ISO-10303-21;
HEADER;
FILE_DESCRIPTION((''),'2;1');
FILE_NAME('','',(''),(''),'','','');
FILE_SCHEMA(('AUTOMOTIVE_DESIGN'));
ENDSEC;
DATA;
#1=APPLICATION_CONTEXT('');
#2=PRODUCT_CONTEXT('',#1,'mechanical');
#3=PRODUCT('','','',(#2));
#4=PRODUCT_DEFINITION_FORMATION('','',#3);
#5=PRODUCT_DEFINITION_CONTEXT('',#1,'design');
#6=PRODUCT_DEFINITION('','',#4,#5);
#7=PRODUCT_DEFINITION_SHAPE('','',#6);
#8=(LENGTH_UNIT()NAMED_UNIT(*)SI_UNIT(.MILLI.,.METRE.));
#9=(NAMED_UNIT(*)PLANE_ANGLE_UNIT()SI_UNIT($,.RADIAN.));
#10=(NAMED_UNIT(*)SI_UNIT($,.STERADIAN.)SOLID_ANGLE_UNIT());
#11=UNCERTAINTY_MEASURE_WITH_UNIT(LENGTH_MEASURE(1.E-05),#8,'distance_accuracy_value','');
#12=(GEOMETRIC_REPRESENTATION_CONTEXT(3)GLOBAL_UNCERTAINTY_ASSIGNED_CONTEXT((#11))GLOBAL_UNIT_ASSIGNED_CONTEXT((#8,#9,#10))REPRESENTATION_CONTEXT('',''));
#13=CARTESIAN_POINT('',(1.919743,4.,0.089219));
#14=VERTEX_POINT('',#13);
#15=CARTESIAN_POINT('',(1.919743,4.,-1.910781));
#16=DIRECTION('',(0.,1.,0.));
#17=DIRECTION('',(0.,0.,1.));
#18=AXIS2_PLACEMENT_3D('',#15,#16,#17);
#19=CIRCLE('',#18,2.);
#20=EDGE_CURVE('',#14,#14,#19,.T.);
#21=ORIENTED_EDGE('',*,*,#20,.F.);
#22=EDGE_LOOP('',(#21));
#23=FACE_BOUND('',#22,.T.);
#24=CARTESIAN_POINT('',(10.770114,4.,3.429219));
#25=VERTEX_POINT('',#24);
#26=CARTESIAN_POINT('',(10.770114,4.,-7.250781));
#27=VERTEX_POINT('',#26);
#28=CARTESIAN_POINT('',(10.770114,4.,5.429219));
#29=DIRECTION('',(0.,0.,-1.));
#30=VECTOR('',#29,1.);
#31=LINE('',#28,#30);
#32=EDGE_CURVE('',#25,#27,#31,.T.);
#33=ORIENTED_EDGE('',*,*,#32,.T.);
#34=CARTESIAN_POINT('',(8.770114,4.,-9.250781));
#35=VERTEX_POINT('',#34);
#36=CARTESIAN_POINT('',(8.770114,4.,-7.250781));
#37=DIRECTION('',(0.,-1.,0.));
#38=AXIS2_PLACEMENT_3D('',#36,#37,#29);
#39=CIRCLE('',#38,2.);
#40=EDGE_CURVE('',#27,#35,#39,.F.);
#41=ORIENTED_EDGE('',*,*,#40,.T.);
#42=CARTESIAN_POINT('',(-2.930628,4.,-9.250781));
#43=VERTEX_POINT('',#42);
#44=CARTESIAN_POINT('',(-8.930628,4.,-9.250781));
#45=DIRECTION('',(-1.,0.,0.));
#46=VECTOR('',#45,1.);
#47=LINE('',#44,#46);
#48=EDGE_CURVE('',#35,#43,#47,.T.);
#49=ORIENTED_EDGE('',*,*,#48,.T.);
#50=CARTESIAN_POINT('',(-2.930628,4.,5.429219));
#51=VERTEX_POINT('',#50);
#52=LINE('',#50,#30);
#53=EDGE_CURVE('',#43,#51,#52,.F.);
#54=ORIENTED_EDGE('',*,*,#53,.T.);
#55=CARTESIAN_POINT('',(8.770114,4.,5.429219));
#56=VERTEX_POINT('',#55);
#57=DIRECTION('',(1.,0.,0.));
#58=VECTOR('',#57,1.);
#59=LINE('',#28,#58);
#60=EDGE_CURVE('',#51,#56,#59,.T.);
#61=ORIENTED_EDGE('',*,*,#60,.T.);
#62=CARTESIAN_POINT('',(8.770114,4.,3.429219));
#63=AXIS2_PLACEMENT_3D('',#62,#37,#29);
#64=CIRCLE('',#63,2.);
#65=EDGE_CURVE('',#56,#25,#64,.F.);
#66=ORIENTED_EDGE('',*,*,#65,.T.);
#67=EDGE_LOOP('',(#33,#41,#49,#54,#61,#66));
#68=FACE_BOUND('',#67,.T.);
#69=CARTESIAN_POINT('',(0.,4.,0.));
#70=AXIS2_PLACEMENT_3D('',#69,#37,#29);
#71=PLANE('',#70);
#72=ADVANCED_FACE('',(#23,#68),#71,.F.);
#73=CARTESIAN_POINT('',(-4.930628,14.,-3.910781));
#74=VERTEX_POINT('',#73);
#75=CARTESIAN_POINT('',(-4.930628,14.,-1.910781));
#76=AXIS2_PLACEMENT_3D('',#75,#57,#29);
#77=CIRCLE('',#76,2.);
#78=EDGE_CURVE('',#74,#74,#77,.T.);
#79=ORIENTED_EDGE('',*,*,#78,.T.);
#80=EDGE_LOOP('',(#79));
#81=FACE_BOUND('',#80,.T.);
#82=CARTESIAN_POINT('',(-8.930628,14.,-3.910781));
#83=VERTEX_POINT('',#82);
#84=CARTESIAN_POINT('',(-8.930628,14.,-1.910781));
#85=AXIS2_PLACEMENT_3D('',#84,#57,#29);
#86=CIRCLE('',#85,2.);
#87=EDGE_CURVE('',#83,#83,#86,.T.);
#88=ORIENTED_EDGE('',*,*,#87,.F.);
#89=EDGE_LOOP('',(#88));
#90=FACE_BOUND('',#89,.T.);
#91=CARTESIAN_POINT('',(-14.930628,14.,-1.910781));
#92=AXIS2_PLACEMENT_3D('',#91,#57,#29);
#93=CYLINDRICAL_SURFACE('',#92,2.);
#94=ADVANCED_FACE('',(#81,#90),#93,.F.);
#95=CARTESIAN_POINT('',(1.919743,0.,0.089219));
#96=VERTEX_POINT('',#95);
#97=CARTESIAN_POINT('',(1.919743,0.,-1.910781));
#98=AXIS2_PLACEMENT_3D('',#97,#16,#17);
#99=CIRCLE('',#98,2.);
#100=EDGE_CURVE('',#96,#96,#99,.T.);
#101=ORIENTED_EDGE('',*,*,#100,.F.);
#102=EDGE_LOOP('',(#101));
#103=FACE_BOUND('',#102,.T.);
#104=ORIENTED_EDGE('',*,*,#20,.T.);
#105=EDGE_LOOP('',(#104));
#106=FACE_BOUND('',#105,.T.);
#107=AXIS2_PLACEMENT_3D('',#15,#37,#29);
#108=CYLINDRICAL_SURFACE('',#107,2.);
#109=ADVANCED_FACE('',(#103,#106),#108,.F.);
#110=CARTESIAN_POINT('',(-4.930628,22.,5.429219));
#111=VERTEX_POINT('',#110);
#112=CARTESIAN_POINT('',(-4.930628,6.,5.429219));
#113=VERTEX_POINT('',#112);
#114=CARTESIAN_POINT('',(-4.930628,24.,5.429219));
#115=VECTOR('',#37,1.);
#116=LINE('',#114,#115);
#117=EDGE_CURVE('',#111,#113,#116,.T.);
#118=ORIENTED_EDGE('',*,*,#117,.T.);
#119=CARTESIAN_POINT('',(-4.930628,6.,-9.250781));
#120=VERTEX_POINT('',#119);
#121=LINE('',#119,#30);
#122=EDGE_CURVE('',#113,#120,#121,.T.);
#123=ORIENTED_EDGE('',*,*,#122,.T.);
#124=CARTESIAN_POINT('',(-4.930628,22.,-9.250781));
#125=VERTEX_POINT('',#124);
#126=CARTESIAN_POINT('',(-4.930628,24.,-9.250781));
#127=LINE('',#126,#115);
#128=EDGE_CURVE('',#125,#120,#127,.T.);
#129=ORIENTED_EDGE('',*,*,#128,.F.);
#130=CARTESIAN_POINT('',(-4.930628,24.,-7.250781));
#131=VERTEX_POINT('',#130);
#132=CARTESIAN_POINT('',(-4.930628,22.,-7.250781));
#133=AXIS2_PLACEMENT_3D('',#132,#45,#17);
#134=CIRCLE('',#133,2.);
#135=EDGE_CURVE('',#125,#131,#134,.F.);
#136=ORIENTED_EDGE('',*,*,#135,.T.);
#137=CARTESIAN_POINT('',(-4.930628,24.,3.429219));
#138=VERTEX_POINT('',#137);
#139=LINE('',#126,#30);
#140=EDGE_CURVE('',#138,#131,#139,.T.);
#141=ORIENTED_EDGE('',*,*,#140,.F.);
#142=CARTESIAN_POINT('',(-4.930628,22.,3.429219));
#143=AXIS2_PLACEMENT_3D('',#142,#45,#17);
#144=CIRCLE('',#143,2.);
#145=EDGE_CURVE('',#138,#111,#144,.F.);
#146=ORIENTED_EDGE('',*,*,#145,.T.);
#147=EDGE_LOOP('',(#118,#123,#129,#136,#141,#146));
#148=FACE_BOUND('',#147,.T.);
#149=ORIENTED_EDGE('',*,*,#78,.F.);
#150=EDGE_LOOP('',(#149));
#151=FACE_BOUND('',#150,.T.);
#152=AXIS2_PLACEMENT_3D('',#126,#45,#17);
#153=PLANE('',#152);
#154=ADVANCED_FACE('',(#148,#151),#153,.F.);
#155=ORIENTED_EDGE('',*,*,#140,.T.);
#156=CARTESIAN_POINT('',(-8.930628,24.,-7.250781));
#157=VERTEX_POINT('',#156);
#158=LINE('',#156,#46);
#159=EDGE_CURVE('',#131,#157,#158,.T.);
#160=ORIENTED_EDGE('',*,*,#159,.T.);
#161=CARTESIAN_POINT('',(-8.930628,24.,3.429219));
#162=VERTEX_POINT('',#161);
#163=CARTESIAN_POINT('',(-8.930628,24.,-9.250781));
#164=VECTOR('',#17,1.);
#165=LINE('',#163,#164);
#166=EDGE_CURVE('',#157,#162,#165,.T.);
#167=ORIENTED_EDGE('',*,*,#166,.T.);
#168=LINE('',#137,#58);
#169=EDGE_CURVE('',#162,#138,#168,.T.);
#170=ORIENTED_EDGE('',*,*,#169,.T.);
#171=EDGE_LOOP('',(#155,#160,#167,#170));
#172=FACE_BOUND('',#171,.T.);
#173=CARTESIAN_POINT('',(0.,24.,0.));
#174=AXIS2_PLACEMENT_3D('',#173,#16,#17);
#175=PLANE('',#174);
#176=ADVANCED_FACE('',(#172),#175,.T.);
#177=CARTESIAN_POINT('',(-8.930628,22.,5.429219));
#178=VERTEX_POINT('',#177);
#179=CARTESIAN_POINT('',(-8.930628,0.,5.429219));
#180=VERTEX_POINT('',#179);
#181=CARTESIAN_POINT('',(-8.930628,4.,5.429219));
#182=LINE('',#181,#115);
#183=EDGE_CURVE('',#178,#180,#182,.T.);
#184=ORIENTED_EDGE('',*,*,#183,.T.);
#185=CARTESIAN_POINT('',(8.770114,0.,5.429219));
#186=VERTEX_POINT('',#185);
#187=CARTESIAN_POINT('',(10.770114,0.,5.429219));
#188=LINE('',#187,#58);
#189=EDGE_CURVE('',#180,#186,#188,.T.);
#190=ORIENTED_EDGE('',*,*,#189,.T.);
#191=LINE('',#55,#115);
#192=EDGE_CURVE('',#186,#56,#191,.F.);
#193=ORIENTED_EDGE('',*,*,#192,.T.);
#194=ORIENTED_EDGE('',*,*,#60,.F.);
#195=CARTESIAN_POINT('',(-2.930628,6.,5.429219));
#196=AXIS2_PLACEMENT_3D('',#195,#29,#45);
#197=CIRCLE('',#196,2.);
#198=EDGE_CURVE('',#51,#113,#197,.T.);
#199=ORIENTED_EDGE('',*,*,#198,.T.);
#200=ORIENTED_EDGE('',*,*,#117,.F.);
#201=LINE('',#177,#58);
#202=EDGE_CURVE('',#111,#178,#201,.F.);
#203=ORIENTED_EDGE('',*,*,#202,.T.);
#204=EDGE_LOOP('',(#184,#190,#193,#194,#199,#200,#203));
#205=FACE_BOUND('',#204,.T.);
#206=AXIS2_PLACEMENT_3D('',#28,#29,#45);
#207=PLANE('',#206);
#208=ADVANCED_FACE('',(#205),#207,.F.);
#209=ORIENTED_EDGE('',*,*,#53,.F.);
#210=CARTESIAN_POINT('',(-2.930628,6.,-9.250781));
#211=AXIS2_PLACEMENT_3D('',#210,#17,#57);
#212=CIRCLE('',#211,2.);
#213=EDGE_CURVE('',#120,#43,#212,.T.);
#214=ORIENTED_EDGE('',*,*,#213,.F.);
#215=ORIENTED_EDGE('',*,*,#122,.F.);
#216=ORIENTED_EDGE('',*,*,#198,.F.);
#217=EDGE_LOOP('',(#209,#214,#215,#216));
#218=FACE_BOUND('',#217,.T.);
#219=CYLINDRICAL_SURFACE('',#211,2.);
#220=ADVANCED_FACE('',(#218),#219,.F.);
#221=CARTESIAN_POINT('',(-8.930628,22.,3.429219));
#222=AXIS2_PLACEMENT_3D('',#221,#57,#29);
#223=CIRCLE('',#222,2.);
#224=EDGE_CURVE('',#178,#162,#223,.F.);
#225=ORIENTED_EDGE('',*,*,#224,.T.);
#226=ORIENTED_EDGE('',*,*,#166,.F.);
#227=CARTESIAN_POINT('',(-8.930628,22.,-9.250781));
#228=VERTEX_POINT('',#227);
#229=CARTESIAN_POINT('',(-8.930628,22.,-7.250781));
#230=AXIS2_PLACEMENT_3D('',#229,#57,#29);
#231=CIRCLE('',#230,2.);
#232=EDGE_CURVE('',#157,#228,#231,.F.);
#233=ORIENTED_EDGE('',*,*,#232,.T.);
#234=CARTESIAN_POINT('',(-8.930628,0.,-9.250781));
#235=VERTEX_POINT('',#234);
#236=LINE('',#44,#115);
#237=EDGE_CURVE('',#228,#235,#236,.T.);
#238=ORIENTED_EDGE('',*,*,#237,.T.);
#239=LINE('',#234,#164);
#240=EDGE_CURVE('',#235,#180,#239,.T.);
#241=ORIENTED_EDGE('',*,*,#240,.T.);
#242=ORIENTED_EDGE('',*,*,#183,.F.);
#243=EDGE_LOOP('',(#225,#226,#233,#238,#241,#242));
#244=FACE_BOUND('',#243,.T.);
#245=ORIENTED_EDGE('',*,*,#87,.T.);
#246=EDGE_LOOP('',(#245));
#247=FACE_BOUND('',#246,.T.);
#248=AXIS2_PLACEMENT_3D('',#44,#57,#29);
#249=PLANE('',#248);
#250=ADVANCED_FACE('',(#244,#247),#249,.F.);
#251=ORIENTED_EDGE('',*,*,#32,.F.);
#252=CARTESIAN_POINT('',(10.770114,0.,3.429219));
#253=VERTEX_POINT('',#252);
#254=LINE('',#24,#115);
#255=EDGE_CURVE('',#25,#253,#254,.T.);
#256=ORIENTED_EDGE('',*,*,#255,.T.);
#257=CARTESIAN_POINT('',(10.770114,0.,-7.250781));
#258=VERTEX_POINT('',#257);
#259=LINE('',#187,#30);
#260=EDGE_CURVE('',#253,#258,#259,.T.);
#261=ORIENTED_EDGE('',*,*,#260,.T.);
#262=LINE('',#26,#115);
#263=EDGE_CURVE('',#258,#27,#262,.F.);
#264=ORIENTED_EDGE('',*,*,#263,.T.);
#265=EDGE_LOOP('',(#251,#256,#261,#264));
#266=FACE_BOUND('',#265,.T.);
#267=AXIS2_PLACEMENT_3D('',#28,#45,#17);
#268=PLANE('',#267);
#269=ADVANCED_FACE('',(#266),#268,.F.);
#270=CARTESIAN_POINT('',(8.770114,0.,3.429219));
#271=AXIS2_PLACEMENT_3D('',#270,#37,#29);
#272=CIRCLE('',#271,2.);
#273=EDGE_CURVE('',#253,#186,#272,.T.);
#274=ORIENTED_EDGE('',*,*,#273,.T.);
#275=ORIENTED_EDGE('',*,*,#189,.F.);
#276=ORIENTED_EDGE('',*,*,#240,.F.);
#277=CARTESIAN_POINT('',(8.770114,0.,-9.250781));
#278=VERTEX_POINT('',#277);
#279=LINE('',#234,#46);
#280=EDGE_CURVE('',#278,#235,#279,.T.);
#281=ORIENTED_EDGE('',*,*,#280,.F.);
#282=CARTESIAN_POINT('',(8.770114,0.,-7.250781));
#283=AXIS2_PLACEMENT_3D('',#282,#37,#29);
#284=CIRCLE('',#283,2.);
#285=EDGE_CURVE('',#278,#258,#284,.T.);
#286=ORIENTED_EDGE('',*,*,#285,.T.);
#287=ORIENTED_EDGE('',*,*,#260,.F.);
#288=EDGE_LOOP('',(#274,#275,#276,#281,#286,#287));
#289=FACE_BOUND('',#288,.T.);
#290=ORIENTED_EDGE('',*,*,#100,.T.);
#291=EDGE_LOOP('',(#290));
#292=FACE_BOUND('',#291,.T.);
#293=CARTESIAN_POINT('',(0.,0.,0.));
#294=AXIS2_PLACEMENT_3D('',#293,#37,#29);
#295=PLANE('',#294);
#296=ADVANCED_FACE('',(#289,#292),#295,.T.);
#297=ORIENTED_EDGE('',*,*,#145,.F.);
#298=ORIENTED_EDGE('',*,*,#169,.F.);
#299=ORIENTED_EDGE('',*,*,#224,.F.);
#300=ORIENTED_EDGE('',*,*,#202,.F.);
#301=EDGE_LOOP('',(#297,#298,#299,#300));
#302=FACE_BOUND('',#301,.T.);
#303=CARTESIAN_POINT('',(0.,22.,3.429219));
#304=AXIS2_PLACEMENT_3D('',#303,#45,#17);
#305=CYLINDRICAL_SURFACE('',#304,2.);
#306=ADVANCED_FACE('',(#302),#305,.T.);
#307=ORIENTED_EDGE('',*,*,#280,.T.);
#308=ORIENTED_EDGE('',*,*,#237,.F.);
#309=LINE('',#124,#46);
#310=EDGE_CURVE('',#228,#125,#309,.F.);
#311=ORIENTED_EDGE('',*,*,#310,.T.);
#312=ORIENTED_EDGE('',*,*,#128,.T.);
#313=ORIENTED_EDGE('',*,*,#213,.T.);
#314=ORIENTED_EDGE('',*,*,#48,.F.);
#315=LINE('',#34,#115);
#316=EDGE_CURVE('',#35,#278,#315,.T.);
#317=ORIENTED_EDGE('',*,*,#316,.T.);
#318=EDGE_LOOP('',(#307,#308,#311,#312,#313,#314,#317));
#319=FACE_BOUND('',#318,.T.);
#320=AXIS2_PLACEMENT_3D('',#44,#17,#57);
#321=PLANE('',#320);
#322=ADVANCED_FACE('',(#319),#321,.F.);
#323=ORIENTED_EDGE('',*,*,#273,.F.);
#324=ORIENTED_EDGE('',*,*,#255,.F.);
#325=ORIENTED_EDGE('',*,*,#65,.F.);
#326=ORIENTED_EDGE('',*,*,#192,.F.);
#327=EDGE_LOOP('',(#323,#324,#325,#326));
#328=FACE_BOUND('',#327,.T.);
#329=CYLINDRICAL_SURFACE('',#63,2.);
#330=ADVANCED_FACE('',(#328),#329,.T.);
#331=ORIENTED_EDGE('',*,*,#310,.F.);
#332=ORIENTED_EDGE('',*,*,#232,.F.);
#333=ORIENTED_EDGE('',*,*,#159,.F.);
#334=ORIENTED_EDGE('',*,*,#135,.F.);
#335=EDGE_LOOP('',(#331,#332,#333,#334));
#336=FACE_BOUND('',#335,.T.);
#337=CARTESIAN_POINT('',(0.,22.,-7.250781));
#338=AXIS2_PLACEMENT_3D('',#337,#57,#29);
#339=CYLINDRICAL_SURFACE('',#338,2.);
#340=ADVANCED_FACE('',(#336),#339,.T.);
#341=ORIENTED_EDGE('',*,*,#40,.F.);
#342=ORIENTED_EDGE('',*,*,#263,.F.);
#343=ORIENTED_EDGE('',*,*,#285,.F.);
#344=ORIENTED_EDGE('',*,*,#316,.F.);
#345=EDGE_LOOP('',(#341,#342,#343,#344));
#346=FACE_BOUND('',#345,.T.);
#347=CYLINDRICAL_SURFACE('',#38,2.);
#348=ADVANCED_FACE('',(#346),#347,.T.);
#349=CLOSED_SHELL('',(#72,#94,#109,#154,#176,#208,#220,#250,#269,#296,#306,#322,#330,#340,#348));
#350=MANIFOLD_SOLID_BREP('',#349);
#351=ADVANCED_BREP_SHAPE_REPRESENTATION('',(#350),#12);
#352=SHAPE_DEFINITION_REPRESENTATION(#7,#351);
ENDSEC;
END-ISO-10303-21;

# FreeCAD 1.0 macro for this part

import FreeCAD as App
import Part
import Sketcher
Q = App.Units.Quantity


def edges_at(feature, points):
    """Names of the edges that pass closest to the given points."""
    edges = feature.Shape.Edges
    near = lambda p: min(range(len(edges)), key=lambda i: edges[i].distToShape(Part.Vertex(*p))[0])
    return sorted({f"Edge{near(p) + 1}" for p in points})

doc = App.newDocument("Part")
body = doc.addObject("PartDesign::Body", "Body")

# Sketch on XZ plane
sketch1 = body.newObject("Sketcher::SketchObject", "Sketch")
sketch1.AttachmentSupport = (doc.getObject("XZ_Plane"), [""])
sketch1.MapMode = "FlatFace"
sketch1.addGeometry(Part.LineSegment(App.Vector(-8.9, -9.3, 0), App.Vector(-8.9, 5.4, 0)), False)
sketch1.addGeometry(Part.LineSegment(App.Vector(-8.9, 5.4, 0), App.Vector(10.8, 5.4, 0)), False)
sketch1.addGeometry(Part.LineSegment(App.Vector(10.8, 5.4, 0), App.Vector(10.8, -9.3, 0)), False)
sketch1.addGeometry(Part.LineSegment(App.Vector(10.8, -9.3, 0), App.Vector(-8.9, -9.3, 0)), False)
sketch1.addGeometry(Part.Circle(App.Vector(1.9, -1.9, 0), App.Vector(0, 0, 1), 2), False)
sketch1.addConstraint(Sketcher.Constraint("Coincident", 0, 2, 1, 1))
sketch1.addConstraint(Sketcher.Constraint("Coincident", 1, 2, 2, 1))
sketch1.addConstraint(Sketcher.Constraint("Coincident", 2, 2, 3, 1))
sketch1.addConstraint(Sketcher.Constraint("Coincident", 3, 2, 0, 1))
sketch1.addConstraint(Sketcher.Constraint("Vertical", 0))
sketch1.addConstraint(Sketcher.Constraint("Horizontal", 1))
sketch1.addConstraint(Sketcher.Constraint("Vertical", 2))
sketch1.addConstraint(Sketcher.Constraint("Horizontal", 3))
sketch1.addConstraint(Sketcher.Constraint("Diameter", 4, Q("4 mm")))
sketch1.addConstraint(Sketcher.Constraint("DistanceY", 0, 1, 0, 2, Q("14.68 mm")))
sketch1.addConstraint(Sketcher.Constraint("DistanceY", 4, 3, 0, 2, Q("7.34 mm")))
sketch1.addConstraint(Sketcher.Constraint("DistanceX", 1, 1, 1, 2, Q("19.700742 mm")))
sketch1.addConstraint(Sketcher.Constraint("DistanceY", 4, 3, -1, 1, Q("1.910781 mm")))
sketch1.addConstraint(Sketcher.Constraint("DistanceX", 0, 2, 4, 3, Q("10.850371 mm")))
sketch1.addConstraint(Sketcher.Constraint("DistanceX", -1, 1, 4, 3, Q("1.919743 mm")))
pad1 = body.newObject("PartDesign::Pad", "Pad")
pad1.Profile = sketch1
pad1.Length = 4
pad1.Reversed = True

# Sketch on XZ plane
sketch2 = body.newObject("Sketcher::SketchObject", "Sketch001")
sketch2.AttachmentSupport = (doc.getObject("XZ_Plane"), [""])
sketch2.MapMode = "FlatFace"
sketch2.AttachmentOffset = App.Placement(App.Vector(0, 0, -4), App.Rotation())
sketch2.addGeometry(Part.LineSegment(App.Vector(-8.9, -9.3, 0), App.Vector(-8.9, 5.4, 0)), False)
sketch2.addGeometry(Part.LineSegment(App.Vector(-8.9, 5.4, 0), App.Vector(-4.9, 5.4, 0)), False)
sketch2.addGeometry(Part.LineSegment(App.Vector(-4.9, 5.4, 0), App.Vector(-4.9, -9.3, 0)), False)
sketch2.addGeometry(Part.LineSegment(App.Vector(-4.9, -9.3, 0), App.Vector(-8.9, -9.3, 0)), False)
sketch2.addConstraint(Sketcher.Constraint("Coincident", 0, 2, 1, 1))
sketch2.addConstraint(Sketcher.Constraint("Coincident", 1, 2, 2, 1))
sketch2.addConstraint(Sketcher.Constraint("Coincident", 2, 2, 3, 1))
sketch2.addConstraint(Sketcher.Constraint("Coincident", 3, 2, 0, 1))
sketch2.addConstraint(Sketcher.Constraint("Vertical", 0))
sketch2.addConstraint(Sketcher.Constraint("Horizontal", 1))
sketch2.addConstraint(Sketcher.Constraint("Vertical", 2))
sketch2.addConstraint(Sketcher.Constraint("Horizontal", 3))
sketch2.addConstraint(Sketcher.Constraint("DistanceX", 1, 1, 1, 2, Q("4 mm")))
sketch2.addConstraint(Sketcher.Constraint("DistanceY", 0, 1, 0, 2, Q("14.68 mm")))
sketch2.addConstraint(Sketcher.Constraint("DistanceY", -1, 1, 0, 2, Q("5.429219 mm")))
sketch2.addConstraint(Sketcher.Constraint("DistanceX", 0, 2, -1, 1, Q("8.930628 mm")))
pad2 = body.newObject("PartDesign::Pad", "Pad001")
pad2.Profile = sketch2
pad2.Length = 20
pad2.Reversed = True

# Sketch on YZ plane
sketch3 = body.newObject("Sketcher::SketchObject", "Sketch002")
sketch3.AttachmentSupport = (doc.getObject("YZ_Plane"), [""])
sketch3.MapMode = "FlatFace"
sketch3.AttachmentOffset = App.Placement(App.Vector(0, 0, -4.930628), App.Rotation())
sketch3.addGeometry(Part.Circle(App.Vector(14, -1.9, 0), App.Vector(0, 0, 1), 2), False)
sketch3.addConstraint(Sketcher.Constraint("Diameter", 0, Q("4 mm")))
sketch3.addConstraint(Sketcher.Constraint("DistanceX", -1, 1, 0, 3, Q("14 mm")))
sketch3.addConstraint(Sketcher.Constraint("DistanceY", 0, 3, -1, 1, Q("1.910781 mm")))
pocket1 = body.newObject("PartDesign::Pocket", "Pocket")
pocket1.Profile = sketch3
pocket1.Length = 10
doc.recompute()

fillet = body.newObject("PartDesign::Fillet", "Fillet")
fillet.Base = (pocket1, edges_at(pocket1, [
    (-4.931, 4, -1.911),
    (-6.931, 24, 5.429),
    (-6.931, 24, -9.251),
    (10.77, 2, -9.251),
    (10.77, 2, 5.429),
]))
fillet.Radius = 2

doc.recompute()
